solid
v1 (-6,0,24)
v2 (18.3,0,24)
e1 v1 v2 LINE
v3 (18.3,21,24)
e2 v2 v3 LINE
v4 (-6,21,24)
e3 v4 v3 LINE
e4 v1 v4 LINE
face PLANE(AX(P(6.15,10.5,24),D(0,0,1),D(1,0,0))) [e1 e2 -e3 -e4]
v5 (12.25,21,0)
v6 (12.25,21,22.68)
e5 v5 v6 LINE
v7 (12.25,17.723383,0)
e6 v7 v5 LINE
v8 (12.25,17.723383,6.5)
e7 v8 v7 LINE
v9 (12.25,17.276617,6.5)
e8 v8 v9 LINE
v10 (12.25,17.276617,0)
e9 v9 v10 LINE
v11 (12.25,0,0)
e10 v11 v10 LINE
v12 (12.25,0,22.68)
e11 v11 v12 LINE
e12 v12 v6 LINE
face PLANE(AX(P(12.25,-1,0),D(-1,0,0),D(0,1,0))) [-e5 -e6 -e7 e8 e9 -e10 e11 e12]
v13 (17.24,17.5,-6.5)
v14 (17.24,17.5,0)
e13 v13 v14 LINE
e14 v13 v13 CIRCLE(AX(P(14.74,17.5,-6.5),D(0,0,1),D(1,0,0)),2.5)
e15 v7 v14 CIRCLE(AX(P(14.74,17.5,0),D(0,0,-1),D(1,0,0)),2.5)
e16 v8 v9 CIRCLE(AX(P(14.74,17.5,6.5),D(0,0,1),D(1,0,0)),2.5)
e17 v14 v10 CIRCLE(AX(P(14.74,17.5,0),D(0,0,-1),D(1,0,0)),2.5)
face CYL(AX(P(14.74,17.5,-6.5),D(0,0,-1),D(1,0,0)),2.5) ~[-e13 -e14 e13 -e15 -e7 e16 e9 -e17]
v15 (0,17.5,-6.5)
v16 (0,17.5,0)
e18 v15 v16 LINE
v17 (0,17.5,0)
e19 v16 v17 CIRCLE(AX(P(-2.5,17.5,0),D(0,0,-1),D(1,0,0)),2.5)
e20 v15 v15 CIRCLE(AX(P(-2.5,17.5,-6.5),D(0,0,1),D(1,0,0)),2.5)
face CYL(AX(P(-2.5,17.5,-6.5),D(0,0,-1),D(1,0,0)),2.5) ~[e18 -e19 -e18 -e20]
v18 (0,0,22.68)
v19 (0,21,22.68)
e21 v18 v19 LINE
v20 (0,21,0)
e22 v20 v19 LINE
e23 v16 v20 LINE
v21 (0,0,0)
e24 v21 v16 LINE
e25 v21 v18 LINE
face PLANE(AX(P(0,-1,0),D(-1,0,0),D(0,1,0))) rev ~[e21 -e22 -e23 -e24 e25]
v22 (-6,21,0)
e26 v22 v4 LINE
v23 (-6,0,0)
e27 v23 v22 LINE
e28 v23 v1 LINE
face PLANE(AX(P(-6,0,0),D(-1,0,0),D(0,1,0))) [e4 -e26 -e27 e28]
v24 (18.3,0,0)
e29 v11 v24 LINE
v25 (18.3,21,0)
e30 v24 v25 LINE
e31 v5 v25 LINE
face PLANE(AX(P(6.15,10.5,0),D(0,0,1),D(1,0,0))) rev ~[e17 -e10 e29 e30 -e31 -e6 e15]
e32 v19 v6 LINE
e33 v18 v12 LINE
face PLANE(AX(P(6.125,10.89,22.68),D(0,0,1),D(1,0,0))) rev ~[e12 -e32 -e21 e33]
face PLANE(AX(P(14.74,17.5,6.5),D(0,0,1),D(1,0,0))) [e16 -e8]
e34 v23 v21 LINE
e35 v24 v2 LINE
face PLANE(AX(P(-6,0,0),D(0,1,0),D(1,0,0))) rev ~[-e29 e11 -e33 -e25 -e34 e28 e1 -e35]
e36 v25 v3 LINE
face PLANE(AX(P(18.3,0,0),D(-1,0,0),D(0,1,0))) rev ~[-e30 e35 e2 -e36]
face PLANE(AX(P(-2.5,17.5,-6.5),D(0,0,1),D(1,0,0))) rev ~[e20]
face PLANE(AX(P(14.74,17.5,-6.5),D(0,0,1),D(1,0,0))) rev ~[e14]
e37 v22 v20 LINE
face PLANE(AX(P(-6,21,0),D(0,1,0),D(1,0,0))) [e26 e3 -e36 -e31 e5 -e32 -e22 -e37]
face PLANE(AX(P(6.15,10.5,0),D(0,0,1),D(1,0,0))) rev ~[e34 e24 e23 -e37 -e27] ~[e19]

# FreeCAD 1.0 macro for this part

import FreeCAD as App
import Part
import Sketcher

V = App.Vector


def add_polygon(sketch, points):
    """Adds a closed chain of lines whose ends are joined by coincident constraints."""
    first, n = sketch.GeometryCount, len(points)
    for a, b in zip(points, points[1:] + points[:1]):
        sketch.addGeometry(Part.LineSegment(App.Vector(*a, 0), App.Vector(*b, 0)), False)
    for i in range(n):
        sketch.addConstraint(Sketcher.Constraint("Coincident", first + i, 2, first + (i + 1) % n, 1))

doc = App.newDocument("Part")
params = doc.addObject("Spreadsheet::Sheet", "Params")
for row, (alias, value) in enumerate([
    ("sketch1_diameter", "5 mm"),
    ("pad1_length", "13 mm"),
    ("sketch2_width", "12.25 mm"),
    ("sketch2_height", "23.78 mm"),
    ("pad2_length", "22.68 mm"),
    ("sketch3_height", "21 mm"),
    ("sketch3_width", "24.3 mm"),
    ("pad3_length", "24 mm"),
    ("sketch4_diameter", "5 mm"),
    ("pad4_length", "13 mm"),
], start=1):
    params.set(f"A{row}", alias)
    params.set(f"B{row}", "=" + value)
    params.setAlias(f"B{row}", alias)

body = doc.addObject("PartDesign::Body", "Body")

# Sketch on XY plane
sketch1 = doc.addObject("Sketcher::SketchObject", "Sketch")
body.addObject(sketch1)
sketch1.AttachmentSupport = (doc.XY_Plane, [""])
sketch1.MapMode = "FlatFace"
sketch1.AttachmentOffset = App.Placement(V(0, 0, -6.5), App.Rotation())
sketch1.addGeometry(Part.Circle(V(14.7, 17.5, 0), V(0, 0, 1), 2.5), False)
sketch1.addConstraint([
    Sketcher.Constraint("Diameter", 0, 5.0),
    Sketcher.Constraint("DistanceY", -1, 1, 0, 3, 17.5),
    Sketcher.Constraint("DistanceX", -1, 1, 0, 3, 14.74),
])
sketch1.setExpression("Constraints[0]", "Params.sketch1_diameter")
pad1 = doc.addObject("PartDesign::Pad", "Pad")
body.addObject(pad1)
pad1.Profile = sketch1
pad1.setExpression("Length", "Params.pad1_length")
body2 = doc.addObject("PartDesign::Body", "Body001")

# Sketch on XY plane
sketch2 = doc.addObject("Sketcher::SketchObject", "Sketch001")
body2.addObject(sketch2)
sketch2.AttachmentSupport = (doc.getObject("XY_Plane001"), [""])
sketch2.MapMode = "FlatFace"
add_polygon(sketch2, [(0, 23), (0, -1), (12, -1), (12, 23)])  # lines 0-3
sketch2.addConstraint([
    Sketcher.Constraint("Vertical", 0),
    Sketcher.Constraint("Horizontal", 1),
    Sketcher.Constraint("Vertical", 2),
    Sketcher.Constraint("Horizontal", 3),
    Sketcher.Constraint("PointOnObject", 0, 2, -2),
    Sketcher.Constraint("DistanceY", 0, 2, -1, 1, 1.0),
    Sketcher.Constraint("DistanceX", 1, 1, 1, 2, 12.25),
    Sketcher.Constraint("DistanceY", 0, 2, 0, 1, 23.78),
])
sketch2.setExpression("Constraints[10]", "Params.sketch2_width")
sketch2.setExpression("Constraints[11]", "Params.sketch2_height")
pad2 = doc.addObject("PartDesign::Pad", "Pad001")
body2.addObject(pad2)
pad2.Profile = sketch2
pad2.setExpression("Length", "Params.pad2_length")
body3 = doc.addObject("PartDesign::Body", "Body002")

# Sketch on XY plane
sketch3 = doc.addObject("Sketcher::SketchObject", "Sketch002")
body3.addObject(sketch3)
sketch3.AttachmentSupport = (doc.getObject("XY_Plane002"), [""])
sketch3.MapMode = "FlatFace"
add_polygon(sketch3, [(-6, 21), (-6, 0), (18, 0), (18, 21)])  # lines 0-3
sketch3.addConstraint([
    Sketcher.Constraint("Vertical", 0),
    Sketcher.Constraint("Horizontal", 1),
    Sketcher.Constraint("Vertical", 2),
    Sketcher.Constraint("Horizontal", 3),
    Sketcher.Constraint("PointOnObject", 0, 2, -1),
    Sketcher.Constraint("DistanceY", 0, 2, 0, 1, 21.0),
    Sketcher.Constraint("DistanceX", 1, 1, 1, 2, 24.3),
    Sketcher.Constraint("DistanceX", 0, 2, -1, 1, 6.0),
])
sketch3.setExpression("Constraints[9]", "Params.sketch3_height")
sketch3.setExpression("Constraints[10]", "Params.sketch3_width")
pad3 = doc.addObject("PartDesign::Pad", "Pad002")
body3.addObject(pad3)
pad3.Profile = sketch3
pad3.setExpression("Length", "Params.pad3_length")
doc.recompute()

boolean = doc.addObject("PartDesign::Boolean", "Boolean")
body3.addObject(boolean)
boolean.Type = "Cut"
boolean.addObjects([body2])
body4 = doc.addObject("PartDesign::Body", "Body003")
body4.AllowCompound = True

# Sketch on XY plane
sketch4 = doc.addObject("Sketcher::SketchObject", "Sketch003")
body4.addObject(sketch4)
sketch4.AttachmentSupport = (doc.getObject("XY_Plane003"), [""])
sketch4.MapMode = "FlatFace"
sketch4.AttachmentOffset = App.Placement(V(0, 0, -6.5), App.Rotation())
sketch4.addGeometry(Part.Circle(V(-2.5, 17.5, 0), V(0, 0, 1), 2.5), False)
sketch4.addConstraint([
    Sketcher.Constraint("Diameter", 0, 5.0),
    Sketcher.Constraint("DistanceX", 0, 3, -1, 1, 2.5),
    Sketcher.Constraint("DistanceY", -1, 1, 0, 3, 17.5),
])
sketch4.setExpression("Constraints[0]", "Params.sketch4_diameter")
pad4 = doc.addObject("PartDesign::Pad", "Pad003")
body4.addObject(pad4)
pad4.Profile = sketch4
pad4.setExpression("Length", "Params.pad4_length")
doc.recompute()

boolean2 = doc.addObject("PartDesign::Boolean", "Boolean001")
body4.addObject(boolean2)
boolean2.Type = "Fuse"
boolean2.addObjects([body])
doc.recompute()

boolean3 = doc.addObject("PartDesign::Boolean", "Boolean002")
body4.addObject(boolean3)
boolean3.Type = "Fuse"
boolean3.addObjects([body3])

doc.recompute()
